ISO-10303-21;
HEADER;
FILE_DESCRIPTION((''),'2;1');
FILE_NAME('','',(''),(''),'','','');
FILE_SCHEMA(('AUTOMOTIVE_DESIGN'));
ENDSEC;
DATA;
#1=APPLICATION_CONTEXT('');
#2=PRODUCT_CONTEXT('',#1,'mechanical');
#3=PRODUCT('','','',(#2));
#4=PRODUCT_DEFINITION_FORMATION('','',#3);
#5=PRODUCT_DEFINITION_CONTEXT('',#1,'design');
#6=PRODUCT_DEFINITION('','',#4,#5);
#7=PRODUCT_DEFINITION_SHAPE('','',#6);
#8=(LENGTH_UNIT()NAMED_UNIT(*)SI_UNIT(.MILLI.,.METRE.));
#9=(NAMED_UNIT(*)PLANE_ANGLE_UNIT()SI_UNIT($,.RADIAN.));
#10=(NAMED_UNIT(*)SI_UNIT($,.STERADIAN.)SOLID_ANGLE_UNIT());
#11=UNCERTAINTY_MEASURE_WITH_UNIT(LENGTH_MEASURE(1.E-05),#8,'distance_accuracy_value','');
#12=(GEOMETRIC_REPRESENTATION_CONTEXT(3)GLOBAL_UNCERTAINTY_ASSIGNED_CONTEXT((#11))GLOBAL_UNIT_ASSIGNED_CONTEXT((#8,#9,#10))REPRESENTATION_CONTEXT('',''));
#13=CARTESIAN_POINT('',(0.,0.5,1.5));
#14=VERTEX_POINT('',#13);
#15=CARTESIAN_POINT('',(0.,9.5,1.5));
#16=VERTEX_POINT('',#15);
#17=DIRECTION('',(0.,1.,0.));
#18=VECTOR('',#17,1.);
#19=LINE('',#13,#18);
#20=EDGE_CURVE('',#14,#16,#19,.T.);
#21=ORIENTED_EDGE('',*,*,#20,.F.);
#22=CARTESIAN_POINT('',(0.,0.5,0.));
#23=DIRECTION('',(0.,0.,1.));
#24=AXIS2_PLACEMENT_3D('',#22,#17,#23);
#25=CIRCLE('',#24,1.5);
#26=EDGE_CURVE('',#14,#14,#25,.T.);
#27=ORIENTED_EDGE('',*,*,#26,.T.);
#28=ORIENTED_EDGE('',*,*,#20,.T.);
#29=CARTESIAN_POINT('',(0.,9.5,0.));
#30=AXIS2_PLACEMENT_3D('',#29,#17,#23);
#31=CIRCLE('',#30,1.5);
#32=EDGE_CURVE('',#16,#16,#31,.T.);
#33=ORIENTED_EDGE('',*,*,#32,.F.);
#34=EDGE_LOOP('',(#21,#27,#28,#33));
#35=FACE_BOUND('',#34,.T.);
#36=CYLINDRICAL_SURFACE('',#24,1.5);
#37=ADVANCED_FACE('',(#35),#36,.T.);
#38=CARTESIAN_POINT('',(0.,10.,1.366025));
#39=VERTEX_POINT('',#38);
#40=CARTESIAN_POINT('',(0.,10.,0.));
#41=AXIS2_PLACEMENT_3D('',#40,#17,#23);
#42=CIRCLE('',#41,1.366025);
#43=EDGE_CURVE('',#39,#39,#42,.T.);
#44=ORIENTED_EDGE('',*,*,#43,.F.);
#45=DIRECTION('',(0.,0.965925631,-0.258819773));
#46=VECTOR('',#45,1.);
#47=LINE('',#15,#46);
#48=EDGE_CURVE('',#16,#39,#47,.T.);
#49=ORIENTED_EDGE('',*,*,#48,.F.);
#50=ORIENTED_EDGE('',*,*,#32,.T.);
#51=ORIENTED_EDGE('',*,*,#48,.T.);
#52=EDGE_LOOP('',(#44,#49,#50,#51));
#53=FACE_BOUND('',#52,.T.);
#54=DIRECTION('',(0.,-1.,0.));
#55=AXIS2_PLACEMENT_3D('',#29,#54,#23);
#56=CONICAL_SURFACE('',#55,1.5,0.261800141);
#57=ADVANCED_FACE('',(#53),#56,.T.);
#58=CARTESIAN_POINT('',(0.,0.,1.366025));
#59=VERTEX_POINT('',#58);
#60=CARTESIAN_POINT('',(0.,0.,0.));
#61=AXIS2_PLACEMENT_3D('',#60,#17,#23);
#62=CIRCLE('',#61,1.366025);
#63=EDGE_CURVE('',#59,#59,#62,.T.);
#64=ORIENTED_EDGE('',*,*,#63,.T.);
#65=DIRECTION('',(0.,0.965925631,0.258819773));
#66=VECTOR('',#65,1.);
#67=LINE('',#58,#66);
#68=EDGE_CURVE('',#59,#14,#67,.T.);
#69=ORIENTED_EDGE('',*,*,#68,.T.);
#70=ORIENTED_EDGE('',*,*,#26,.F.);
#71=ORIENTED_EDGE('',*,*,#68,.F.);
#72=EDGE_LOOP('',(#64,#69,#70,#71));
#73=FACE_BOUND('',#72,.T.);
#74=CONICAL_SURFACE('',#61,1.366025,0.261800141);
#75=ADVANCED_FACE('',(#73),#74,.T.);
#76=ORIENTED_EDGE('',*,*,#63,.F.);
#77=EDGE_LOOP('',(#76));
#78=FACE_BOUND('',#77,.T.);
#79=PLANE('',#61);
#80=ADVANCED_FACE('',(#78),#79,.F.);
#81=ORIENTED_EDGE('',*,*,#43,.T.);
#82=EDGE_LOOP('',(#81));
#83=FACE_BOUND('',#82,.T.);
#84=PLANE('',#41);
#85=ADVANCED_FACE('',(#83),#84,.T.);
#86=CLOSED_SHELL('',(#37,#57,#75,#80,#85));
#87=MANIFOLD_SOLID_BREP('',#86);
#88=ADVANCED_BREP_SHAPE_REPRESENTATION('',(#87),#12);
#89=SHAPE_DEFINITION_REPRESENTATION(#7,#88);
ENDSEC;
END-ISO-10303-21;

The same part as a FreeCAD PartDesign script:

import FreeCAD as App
import Part
import Sketcher

doc = App.newDocument("Part")
params = doc.addObject("Spreadsheet::Sheet", "Params")
for row, (alias, value) in enumerate([
    ("sketch1_width", "10 mm"),
    ("sketch1_width2", "9 mm"),
    ("revolution_angle", "360 deg"),
], start=1):
    params.set(f"A{row}", alias)
    params.set(f"B{row}", "=" + value)
    params.setAlias(f"B{row}", alias)

body = doc.addObject("PartDesign::Body", "Body")

# Sketch on YZ plane
sketch1 = doc.addObject("Sketcher::SketchObject", "Sketch")
body.addObject(sketch1)
sketch1.AttachmentSupport = (doc.YZ_Plane, [""])
sketch1.MapMode = "FlatFace"
sketch1.addGeometry(Part.LineSegment(App.Vector(0, 1.4, 0), App.Vector(0, 0, 0)), False)
sketch1.addGeometry(Part.LineSegment(App.Vector(0, 0, 0), App.Vector(10, 0, 0)), False)
sketch1.addGeometry(Part.LineSegment(App.Vector(10, 0, 0), App.Vector(10, 1.4, 0)), False)
sketch1.addGeometry(Part.LineSegment(App.Vector(10, 1.4, 0), App.Vector(9.5, 1.5, 0)), False)
sketch1.addGeometry(Part.LineSegment(App.Vector(9.5, 1.5, 0), App.Vector(0.5, 1.5, 0)), False)
sketch1.addGeometry(Part.LineSegment(App.Vector(0.5, 1.5, 0), App.Vector(0, 1.4, 0)), False)
sketch1.addConstraint(Sketcher.Constraint("Coincident", 0, 2, 1, 1))
sketch1.addConstraint(Sketcher.Constraint("Coincident", 1, 2, 2, 1))
sketch1.addConstraint(Sketcher.Constraint("Coincident", 2, 2, 3, 1))
sketch1.addConstraint(Sketcher.Constraint("Coincident", 3, 2, 4, 1))
sketch1.addConstraint(Sketcher.Constraint("Coincident", 4, 2, 5, 1))
sketch1.addConstraint(Sketcher.Constraint("Coincident", 5, 2, 0, 1))
sketch1.addConstraint(Sketcher.Constraint("Vertical", 0))
sketch1.addConstraint(Sketcher.Constraint("Horizontal", 1))
sketch1.addConstraint(Sketcher.Constraint("Vertical", 2))
sketch1.addConstraint(Sketcher.Constraint("Horizontal", 4))
sketch1.addConstraint(Sketcher.Constraint("Coincident", 0, 2, -1, 1))
sketch1.addConstraint(Sketcher.Constraint("Horizontal", 2, 2, 5, 2))
sketch1.addConstraint(Sketcher.Constraint("Equal", 3, 5))
sketch1.addConstraint(Sketcher.Constraint("DistanceX", 1, 1, 1, 2, 10.0))
sketch1.addConstraint(Sketcher.Constraint("DistanceX", 4, 2, 4, 1, 9.0))
sketch1.addConstraint(Sketcher.Constraint("DistanceY", -1, 1, 3, 2, 1.5))
sketch1.addConstraint(Sketcher.Constraint("Distance", 3, 0.517638))
sketch1.setExpression("Constraints[13]", "Params.sketch1_width")
sketch1.setExpression("Constraints[14]", "Params.sketch1_width2")
revolution = doc.addObject("PartDesign::Revolution", "Revolution")
body.addObject(revolution)
revolution.Profile = sketch1
revolution.ReferenceAxis = (sketch1, ["H_Axis"])
revolution.setExpression("Angle", "Params.revolution_angle")

doc.recompute()
